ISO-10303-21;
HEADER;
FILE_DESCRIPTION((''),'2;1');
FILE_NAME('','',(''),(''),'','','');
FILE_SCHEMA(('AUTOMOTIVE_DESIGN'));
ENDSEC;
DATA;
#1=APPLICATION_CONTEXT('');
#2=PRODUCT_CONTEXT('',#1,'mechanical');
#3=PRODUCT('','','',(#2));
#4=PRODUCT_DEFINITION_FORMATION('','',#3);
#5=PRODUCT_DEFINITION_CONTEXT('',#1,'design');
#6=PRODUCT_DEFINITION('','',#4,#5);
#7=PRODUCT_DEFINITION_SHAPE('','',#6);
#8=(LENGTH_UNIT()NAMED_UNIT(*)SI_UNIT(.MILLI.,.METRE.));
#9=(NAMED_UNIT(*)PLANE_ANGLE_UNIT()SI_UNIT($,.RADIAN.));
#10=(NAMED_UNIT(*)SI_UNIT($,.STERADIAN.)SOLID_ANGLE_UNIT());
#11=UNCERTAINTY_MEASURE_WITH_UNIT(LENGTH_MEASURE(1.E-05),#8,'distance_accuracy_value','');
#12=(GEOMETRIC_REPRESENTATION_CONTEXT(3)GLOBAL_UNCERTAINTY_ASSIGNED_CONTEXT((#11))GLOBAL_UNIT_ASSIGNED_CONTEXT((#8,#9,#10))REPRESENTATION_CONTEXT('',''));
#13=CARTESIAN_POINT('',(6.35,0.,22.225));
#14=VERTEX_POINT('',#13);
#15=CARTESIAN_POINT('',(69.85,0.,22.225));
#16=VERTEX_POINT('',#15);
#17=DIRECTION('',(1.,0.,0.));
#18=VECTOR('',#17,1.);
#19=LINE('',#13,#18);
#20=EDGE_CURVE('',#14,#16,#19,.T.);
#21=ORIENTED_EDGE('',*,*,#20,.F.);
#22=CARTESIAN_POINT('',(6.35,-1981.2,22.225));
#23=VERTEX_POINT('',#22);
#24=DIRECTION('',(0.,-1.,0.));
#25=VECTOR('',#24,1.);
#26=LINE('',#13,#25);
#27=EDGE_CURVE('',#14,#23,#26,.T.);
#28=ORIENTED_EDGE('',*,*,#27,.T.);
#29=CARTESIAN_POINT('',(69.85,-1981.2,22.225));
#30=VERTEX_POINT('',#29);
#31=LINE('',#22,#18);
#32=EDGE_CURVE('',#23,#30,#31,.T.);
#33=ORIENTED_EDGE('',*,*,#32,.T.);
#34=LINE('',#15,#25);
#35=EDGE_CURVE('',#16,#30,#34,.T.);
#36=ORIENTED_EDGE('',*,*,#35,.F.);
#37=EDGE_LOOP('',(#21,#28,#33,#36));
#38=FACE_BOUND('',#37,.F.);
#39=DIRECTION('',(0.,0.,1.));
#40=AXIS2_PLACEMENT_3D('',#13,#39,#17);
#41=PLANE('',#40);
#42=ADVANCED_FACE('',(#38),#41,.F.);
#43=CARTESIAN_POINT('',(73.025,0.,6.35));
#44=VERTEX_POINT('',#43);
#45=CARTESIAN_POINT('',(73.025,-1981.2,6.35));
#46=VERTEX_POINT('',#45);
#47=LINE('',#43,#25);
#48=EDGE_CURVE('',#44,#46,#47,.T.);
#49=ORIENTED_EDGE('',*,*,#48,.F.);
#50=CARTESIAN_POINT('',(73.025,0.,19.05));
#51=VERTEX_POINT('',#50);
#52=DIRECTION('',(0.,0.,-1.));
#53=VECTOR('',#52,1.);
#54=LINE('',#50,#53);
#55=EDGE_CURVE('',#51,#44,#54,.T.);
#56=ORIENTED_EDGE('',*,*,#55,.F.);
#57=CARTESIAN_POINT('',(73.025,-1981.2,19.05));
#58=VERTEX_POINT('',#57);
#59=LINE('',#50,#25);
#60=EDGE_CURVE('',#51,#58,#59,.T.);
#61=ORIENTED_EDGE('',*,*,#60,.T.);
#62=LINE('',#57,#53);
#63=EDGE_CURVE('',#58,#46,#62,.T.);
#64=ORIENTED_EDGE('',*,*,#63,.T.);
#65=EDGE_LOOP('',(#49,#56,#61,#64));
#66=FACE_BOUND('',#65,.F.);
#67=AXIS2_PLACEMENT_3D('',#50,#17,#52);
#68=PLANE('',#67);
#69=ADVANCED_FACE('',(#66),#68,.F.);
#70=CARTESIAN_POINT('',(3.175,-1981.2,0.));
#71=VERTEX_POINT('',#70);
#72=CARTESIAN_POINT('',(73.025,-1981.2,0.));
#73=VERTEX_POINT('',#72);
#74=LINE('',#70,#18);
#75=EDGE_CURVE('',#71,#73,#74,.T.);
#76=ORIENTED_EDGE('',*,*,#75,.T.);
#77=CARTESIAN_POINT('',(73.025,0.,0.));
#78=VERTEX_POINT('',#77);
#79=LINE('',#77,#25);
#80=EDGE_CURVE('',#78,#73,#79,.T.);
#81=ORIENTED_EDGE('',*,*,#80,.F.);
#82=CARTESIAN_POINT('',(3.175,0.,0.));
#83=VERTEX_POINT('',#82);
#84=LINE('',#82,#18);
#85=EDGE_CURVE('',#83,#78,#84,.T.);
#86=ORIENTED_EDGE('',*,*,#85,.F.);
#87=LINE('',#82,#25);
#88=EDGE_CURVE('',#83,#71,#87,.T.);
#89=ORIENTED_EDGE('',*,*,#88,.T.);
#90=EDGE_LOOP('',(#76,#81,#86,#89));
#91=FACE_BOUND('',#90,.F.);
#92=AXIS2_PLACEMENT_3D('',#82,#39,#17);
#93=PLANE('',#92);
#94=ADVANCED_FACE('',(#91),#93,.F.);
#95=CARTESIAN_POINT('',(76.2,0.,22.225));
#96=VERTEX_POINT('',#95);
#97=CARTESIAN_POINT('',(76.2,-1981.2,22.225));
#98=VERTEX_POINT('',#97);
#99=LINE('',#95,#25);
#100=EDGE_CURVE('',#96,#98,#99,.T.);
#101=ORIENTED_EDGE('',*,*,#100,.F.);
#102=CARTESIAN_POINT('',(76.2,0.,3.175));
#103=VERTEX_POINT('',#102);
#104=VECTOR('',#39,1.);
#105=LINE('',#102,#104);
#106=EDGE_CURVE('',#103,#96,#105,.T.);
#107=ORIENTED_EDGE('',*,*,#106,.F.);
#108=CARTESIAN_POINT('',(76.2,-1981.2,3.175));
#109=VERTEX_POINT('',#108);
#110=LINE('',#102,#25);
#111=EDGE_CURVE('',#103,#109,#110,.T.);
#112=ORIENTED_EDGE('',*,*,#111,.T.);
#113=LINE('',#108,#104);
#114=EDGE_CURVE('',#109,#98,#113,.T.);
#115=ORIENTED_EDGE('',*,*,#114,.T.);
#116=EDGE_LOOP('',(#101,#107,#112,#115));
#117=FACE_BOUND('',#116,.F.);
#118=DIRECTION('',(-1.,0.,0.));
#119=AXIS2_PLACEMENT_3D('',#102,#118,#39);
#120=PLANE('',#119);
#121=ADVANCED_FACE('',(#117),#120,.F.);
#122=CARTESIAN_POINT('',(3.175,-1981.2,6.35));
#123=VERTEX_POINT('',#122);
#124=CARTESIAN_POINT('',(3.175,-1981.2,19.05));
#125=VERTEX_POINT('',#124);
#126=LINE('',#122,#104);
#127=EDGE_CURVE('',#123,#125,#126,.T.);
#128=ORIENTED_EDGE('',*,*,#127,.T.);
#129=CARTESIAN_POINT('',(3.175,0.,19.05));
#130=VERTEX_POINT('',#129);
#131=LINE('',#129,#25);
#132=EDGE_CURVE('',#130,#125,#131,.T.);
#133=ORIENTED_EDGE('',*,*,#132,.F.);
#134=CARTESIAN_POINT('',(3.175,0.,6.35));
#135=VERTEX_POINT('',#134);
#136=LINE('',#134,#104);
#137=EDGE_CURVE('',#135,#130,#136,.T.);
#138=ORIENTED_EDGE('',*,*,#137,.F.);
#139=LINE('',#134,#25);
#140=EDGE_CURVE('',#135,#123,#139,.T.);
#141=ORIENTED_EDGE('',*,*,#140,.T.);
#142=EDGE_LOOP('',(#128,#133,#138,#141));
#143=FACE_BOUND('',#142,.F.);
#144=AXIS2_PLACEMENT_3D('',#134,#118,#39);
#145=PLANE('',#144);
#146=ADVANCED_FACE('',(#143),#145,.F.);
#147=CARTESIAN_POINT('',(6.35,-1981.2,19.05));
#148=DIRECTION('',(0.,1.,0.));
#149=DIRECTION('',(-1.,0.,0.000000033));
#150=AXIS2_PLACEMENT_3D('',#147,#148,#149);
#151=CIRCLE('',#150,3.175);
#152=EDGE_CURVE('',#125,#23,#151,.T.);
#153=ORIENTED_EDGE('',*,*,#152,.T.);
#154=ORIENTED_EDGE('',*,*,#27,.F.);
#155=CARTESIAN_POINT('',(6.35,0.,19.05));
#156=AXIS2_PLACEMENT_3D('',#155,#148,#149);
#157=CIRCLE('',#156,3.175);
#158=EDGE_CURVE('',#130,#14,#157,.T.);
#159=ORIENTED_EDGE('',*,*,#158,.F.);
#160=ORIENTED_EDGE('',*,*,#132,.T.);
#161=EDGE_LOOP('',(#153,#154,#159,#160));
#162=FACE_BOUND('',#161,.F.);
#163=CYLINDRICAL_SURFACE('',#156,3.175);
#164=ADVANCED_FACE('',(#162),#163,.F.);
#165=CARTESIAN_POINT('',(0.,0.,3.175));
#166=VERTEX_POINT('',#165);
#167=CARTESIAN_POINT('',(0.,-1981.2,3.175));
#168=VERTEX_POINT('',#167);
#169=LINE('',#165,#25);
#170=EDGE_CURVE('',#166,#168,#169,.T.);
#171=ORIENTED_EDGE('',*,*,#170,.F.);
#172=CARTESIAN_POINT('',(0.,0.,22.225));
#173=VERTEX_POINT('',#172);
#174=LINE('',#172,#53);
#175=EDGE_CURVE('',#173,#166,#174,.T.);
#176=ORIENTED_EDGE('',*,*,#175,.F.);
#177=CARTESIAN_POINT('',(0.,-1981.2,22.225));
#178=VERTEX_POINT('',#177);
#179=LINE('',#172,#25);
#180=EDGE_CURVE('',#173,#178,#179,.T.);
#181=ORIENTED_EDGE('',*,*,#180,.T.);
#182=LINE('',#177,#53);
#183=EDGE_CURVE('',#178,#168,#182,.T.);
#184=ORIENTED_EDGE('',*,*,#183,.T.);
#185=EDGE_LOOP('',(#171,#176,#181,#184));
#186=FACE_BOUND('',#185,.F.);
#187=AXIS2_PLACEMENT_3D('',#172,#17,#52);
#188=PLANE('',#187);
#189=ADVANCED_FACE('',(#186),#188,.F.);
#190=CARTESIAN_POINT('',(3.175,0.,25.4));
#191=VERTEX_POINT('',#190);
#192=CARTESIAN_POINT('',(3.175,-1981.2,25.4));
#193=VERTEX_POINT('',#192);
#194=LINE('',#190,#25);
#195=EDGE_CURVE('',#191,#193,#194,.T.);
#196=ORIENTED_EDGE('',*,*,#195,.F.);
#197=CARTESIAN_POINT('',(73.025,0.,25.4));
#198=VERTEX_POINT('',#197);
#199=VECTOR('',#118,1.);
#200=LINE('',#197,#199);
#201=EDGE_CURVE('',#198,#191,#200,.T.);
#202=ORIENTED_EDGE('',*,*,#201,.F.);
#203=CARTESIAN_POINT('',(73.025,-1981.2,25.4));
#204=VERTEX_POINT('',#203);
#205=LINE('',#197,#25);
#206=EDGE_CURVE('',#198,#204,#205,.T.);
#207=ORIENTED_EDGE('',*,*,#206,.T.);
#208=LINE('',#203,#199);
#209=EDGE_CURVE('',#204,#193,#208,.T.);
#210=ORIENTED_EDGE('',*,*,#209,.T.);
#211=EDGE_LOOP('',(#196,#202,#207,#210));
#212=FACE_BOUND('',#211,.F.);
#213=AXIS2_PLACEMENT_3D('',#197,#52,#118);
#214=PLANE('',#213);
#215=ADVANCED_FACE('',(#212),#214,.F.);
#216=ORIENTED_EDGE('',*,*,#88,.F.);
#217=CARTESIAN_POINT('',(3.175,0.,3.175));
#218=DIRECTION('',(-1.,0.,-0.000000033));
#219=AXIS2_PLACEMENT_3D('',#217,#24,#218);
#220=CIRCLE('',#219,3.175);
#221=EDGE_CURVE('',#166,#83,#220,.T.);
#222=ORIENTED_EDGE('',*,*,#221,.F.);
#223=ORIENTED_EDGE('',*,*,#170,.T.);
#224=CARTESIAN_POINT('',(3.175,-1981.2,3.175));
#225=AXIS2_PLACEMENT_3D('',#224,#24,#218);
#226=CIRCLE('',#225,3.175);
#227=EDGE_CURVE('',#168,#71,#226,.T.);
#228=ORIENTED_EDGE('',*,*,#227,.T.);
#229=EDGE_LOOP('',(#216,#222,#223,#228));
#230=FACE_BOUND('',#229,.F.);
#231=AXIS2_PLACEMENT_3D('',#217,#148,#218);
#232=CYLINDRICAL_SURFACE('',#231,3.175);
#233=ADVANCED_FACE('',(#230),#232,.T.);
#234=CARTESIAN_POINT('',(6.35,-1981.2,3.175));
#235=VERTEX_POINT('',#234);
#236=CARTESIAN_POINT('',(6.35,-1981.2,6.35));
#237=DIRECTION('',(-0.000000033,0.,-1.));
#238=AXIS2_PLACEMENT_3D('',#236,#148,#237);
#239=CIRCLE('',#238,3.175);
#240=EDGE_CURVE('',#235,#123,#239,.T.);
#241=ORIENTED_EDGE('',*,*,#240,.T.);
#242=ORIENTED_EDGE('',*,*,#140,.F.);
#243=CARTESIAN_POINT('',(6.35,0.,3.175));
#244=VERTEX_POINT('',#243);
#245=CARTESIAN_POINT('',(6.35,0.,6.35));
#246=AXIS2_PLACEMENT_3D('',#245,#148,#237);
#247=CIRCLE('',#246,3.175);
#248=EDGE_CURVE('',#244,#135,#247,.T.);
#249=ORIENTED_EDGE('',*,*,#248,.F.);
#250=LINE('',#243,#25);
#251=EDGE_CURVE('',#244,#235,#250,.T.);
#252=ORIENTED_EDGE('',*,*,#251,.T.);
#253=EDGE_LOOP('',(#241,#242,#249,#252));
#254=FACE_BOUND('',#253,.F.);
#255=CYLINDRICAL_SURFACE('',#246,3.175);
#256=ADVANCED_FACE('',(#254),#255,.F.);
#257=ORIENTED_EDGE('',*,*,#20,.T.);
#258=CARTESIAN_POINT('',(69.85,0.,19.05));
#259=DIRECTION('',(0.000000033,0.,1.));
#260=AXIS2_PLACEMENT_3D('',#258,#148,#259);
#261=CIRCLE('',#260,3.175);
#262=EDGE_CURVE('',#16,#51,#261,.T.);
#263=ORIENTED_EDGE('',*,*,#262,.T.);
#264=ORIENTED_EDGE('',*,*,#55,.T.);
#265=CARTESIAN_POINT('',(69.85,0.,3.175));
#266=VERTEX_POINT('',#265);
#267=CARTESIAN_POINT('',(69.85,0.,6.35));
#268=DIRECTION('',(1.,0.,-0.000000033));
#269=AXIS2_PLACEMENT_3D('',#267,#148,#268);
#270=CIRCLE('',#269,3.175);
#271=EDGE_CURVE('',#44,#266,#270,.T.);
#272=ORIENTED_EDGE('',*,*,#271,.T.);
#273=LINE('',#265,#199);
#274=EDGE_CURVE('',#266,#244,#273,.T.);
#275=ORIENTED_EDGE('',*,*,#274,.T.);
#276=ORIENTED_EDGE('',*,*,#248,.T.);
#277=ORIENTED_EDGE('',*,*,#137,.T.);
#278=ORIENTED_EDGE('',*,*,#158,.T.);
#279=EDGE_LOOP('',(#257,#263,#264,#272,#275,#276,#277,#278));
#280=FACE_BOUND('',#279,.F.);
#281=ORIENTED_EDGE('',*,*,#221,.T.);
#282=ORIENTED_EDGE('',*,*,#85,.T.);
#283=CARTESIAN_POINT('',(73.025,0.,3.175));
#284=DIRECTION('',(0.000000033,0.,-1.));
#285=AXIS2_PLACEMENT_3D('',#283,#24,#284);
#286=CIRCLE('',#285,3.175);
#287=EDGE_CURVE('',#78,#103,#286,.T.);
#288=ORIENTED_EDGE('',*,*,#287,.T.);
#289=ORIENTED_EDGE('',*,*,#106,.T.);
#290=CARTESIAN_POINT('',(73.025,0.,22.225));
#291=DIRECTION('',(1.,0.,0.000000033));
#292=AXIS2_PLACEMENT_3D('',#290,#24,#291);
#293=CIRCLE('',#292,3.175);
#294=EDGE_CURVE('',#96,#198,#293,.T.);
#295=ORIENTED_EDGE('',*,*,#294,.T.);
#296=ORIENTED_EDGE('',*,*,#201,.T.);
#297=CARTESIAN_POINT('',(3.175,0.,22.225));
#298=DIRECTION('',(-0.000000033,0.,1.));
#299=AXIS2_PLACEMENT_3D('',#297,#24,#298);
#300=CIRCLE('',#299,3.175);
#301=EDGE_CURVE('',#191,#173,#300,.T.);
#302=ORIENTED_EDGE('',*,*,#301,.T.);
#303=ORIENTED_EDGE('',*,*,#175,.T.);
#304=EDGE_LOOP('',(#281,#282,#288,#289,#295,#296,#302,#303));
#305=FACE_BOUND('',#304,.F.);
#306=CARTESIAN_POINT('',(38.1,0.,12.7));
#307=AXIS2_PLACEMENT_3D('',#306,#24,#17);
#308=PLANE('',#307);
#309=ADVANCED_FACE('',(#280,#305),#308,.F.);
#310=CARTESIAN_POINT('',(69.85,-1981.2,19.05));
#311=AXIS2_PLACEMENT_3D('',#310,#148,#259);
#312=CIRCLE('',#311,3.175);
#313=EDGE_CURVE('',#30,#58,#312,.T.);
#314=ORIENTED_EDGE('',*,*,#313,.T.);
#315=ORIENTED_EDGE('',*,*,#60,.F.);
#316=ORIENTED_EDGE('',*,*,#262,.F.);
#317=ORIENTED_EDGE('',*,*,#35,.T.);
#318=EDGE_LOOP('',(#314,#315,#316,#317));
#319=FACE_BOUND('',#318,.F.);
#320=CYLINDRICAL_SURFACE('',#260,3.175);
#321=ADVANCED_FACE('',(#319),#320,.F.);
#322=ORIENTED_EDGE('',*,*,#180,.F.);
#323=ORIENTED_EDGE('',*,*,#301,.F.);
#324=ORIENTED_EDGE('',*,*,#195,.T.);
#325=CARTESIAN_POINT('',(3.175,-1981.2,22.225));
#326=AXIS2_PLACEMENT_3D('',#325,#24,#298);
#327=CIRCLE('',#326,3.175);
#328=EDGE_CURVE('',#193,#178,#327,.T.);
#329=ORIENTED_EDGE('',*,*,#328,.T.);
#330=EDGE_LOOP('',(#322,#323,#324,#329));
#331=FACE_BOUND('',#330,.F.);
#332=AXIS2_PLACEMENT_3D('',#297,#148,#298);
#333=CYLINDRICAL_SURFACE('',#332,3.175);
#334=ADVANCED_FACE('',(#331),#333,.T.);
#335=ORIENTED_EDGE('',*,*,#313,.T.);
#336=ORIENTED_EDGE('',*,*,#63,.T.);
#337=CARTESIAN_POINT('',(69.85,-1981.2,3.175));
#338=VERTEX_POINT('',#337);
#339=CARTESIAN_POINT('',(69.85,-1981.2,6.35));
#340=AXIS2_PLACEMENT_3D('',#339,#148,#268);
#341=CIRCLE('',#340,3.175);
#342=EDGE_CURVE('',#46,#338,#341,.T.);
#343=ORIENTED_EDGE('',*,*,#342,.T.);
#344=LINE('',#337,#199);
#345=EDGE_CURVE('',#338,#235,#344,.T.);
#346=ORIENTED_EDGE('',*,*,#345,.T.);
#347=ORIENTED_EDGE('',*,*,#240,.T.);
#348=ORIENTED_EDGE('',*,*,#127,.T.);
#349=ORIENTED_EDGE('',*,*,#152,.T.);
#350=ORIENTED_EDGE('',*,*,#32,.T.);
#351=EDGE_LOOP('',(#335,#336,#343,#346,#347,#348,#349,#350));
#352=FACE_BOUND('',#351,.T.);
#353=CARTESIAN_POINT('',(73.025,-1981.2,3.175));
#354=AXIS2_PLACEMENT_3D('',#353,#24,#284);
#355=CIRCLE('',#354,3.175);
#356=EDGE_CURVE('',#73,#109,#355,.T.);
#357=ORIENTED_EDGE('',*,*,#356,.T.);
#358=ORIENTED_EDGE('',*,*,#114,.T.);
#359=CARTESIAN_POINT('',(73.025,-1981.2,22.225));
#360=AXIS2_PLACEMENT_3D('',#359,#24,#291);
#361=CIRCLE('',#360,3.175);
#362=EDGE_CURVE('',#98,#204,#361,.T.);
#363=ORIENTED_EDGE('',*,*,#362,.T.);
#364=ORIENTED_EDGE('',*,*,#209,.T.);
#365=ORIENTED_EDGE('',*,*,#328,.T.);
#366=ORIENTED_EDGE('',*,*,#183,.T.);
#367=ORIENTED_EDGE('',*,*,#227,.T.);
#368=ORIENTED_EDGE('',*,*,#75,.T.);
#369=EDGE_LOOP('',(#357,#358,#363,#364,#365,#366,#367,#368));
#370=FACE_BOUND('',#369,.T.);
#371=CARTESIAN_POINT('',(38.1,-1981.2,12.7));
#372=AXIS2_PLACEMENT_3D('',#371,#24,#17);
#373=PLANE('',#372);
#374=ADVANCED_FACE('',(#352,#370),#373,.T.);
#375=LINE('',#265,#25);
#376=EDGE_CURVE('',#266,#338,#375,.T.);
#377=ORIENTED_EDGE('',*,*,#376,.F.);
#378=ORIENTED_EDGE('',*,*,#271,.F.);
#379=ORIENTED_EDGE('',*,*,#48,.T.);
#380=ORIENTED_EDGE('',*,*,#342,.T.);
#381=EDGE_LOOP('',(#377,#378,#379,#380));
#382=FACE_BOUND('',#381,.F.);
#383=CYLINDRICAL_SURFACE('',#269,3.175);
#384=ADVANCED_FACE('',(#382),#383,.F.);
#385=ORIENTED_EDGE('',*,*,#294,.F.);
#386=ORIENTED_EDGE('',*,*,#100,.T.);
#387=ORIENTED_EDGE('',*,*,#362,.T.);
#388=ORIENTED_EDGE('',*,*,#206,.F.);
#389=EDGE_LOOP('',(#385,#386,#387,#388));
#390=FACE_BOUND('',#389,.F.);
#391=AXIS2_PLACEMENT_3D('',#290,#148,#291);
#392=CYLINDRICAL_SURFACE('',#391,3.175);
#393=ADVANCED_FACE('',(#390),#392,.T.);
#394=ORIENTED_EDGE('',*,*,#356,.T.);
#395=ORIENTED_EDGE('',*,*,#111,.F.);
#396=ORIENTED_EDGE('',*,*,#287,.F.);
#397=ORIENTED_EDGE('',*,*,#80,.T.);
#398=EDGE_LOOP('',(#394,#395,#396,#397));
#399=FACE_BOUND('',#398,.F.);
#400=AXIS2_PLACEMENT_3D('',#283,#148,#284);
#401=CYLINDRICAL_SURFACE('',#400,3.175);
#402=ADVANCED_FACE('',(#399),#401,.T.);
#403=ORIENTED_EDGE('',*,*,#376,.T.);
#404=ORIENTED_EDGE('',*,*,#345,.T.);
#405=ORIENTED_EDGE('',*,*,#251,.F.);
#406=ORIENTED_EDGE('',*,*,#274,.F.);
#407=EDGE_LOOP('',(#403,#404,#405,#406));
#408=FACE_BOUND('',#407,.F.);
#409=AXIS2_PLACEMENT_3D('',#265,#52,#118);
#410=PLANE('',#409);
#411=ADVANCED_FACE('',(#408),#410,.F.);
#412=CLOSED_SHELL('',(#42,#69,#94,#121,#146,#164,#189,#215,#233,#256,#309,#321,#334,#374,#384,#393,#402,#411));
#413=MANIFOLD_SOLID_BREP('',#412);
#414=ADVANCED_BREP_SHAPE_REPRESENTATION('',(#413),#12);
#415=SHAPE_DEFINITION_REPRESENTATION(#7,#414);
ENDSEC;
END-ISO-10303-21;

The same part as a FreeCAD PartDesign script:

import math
import FreeCAD as App
import Part
import Sketcher

V = App.Vector
Q = App.Units.Quantity

doc = App.newDocument("Part")
body = doc.addObject("PartDesign::Body", "Body")

# Sketch on XZ plane
sketch1 = body.newObject("Sketcher::SketchObject", "Sketch")
sketch1.AttachmentSupport = (doc.getObject("XZ_Plane"), [""])
sketch1.MapMode = "FlatFace"
sketch1.addGeometry(Part.ArcOfCircle(Part.Circle(V(3.2, 3.2, 0), V(0, 0, 1), 3.2), math.radians(-180), math.radians(-90)), False)
sketch1.addGeometry(Part.LineSegment(V(3.2, 0, 0), V(73, 0, 0)), False)
sketch1.addGeometry(Part.ArcOfCircle(Part.Circle(V(73, 3.2, 0), V(0, 0, 1), 3.2), math.radians(-90), math.radians(0)), False)
sketch1.addGeometry(Part.LineSegment(V(76.2, 3.2, 0), V(76.2, 22.2, 0)), False)
sketch1.addGeometry(Part.ArcOfCircle(Part.Circle(V(73, 22.2, 0), V(0, 0, 1), 3.2), math.radians(0), math.radians(90)), False)
sketch1.addGeometry(Part.LineSegment(V(73, 25.4, 0), V(3.2, 25.4, 0)), False)
sketch1.addGeometry(Part.ArcOfCircle(Part.Circle(V(3.2, 22.2, 0), V(0, 0, 1), 3.2), math.radians(90), math.radians(180)), False)
sketch1.addGeometry(Part.LineSegment(V(0, 22.2, 0), V(0, 3.2, 0)), False)
sketch1.addGeometry(Part.ArcOfCircle(Part.Circle(V(69.8, 6.4, 0), V(0, 0, 1), 3.2), math.radians(-90), math.radians(0)), False)
sketch1.addGeometry(Part.LineSegment(V(69.8, 3.2, 0), V(6.3, 3.2, 0)), False)
sketch1.addGeometry(Part.ArcOfCircle(Part.Circle(V(6.4, 6.4, 0), V(0, 0, 1), 3.2), math.radians(-180), math.radians(-90)), False)
sketch1.addGeometry(Part.LineSegment(V(3.2, 6.3, 0), V(3.2, 19.1, 0)), False)
sketch1.addGeometry(Part.ArcOfCircle(Part.Circle(V(6.4, 19, 0), V(0, 0, 1), 3.2), math.radians(90), math.radians(180)), False)
sketch1.addGeometry(Part.LineSegment(V(6.3, 22.2, 0), V(69.8, 22.2, 0)), False)
sketch1.addGeometry(Part.ArcOfCircle(Part.Circle(V(69.8, 19, 0), V(0, 0, 1), 3.2), math.radians(0), math.radians(90)), False)
sketch1.addGeometry(Part.LineSegment(V(73, 19.1, 0), V(73, 6.3, 0)), False)
sketch1.addConstraint(Sketcher.Constraint("Tangent", 0, 2, 1, 1))
sketch1.addConstraint(Sketcher.Constraint("Tangent", 1, 2, 2, 1))
sketch1.addConstraint(Sketcher.Constraint("Tangent", 2, 2, 3, 1))
sketch1.addConstraint(Sketcher.Constraint("Tangent", 3, 2, 4, 1))
sketch1.addConstraint(Sketcher.Constraint("Tangent", 4, 2, 5, 1))
sketch1.addConstraint(Sketcher.Constraint("Tangent", 5, 2, 6, 1))
sketch1.addConstraint(Sketcher.Constraint("Tangent", 6, 2, 7, 1))
sketch1.addConstraint(Sketcher.Constraint("Tangent", 7, 2, 0, 1))
sketch1.addConstraint(Sketcher.Constraint("Tangent", 8, 1, 9, 1))
sketch1.addConstraint(Sketcher.Constraint("Tangent", 9, 2, 10, 2))
sketch1.addConstraint(Sketcher.Constraint("Tangent", 10, 1, 11, 1))
sketch1.addConstraint(Sketcher.Constraint("Tangent", 11, 2, 12, 2))
sketch1.addConstraint(Sketcher.Constraint("Tangent", 12, 1, 13, 1))
sketch1.addConstraint(Sketcher.Constraint("Tangent", 13, 2, 14, 2))
sketch1.addConstraint(Sketcher.Constraint("Tangent", 14, 1, 15, 1))
sketch1.addConstraint(Sketcher.Constraint("Tangent", 15, 2, 8, 2))
sketch1.addConstraint(Sketcher.Constraint("Horizontal", 1))
sketch1.addConstraint(Sketcher.Constraint("Vertical", 3))
sketch1.addConstraint(Sketcher.Constraint("Horizontal", 5))
sketch1.addConstraint(Sketcher.Constraint("Vertical", 7))
sketch1.addConstraint(Sketcher.Constraint("Horizontal", 9))
sketch1.addConstraint(Sketcher.Constraint("Vertical", 11))
sketch1.addConstraint(Sketcher.Constraint("Horizontal", 13))
sketch1.addConstraint(Sketcher.Constraint("Vertical", 15))
sketch1.addConstraint(Sketcher.Constraint("Equal", 0, 2))
sketch1.addConstraint(Sketcher.Constraint("Equal", 2, 4))
sketch1.addConstraint(Sketcher.Constraint("Equal", 4, 6))
sketch1.addConstraint(Sketcher.Constraint("Equal", 6, 8))
sketch1.addConstraint(Sketcher.Constraint("Equal", 8, 10))
sketch1.addConstraint(Sketcher.Constraint("Equal", 10, 12))
sketch1.addConstraint(Sketcher.Constraint("Equal", 12, 14))
sketch1.addConstraint(Sketcher.Constraint("PointOnObject", 0, 2, -1))
sketch1.addConstraint(Sketcher.Constraint("PointOnObject", 6, 2, -2))
sketch1.addConstraint(Sketcher.Constraint("Horizontal", 7, 2, 8, 1))
sketch1.addConstraint(Sketcher.Constraint("Horizontal", 6, 2, 12, 1))
sketch1.addConstraint(Sketcher.Constraint("Vertical", 5, 2, 10, 1))
sketch1.addConstraint(Sketcher.Constraint("Vertical", 4, 2, 14, 1))
sketch1.addConstraint(Sketcher.Constraint("DistanceX", 9, 2, 9, 1, Q("2.5 in")))
sketch1.addConstraint(Sketcher.Constraint("DistanceY", 11, 1, 11, 2, Q("0.5 in")))
sketch1.addConstraint(Sketcher.Constraint("DistanceX", -1, 1, 2, 2, Q("3 in")))
pad1 = body.newObject("PartDesign::Pad", "Pad")
pad1.Profile = sketch1
pad1.Length = Q("78 in")

doc.recompute()
